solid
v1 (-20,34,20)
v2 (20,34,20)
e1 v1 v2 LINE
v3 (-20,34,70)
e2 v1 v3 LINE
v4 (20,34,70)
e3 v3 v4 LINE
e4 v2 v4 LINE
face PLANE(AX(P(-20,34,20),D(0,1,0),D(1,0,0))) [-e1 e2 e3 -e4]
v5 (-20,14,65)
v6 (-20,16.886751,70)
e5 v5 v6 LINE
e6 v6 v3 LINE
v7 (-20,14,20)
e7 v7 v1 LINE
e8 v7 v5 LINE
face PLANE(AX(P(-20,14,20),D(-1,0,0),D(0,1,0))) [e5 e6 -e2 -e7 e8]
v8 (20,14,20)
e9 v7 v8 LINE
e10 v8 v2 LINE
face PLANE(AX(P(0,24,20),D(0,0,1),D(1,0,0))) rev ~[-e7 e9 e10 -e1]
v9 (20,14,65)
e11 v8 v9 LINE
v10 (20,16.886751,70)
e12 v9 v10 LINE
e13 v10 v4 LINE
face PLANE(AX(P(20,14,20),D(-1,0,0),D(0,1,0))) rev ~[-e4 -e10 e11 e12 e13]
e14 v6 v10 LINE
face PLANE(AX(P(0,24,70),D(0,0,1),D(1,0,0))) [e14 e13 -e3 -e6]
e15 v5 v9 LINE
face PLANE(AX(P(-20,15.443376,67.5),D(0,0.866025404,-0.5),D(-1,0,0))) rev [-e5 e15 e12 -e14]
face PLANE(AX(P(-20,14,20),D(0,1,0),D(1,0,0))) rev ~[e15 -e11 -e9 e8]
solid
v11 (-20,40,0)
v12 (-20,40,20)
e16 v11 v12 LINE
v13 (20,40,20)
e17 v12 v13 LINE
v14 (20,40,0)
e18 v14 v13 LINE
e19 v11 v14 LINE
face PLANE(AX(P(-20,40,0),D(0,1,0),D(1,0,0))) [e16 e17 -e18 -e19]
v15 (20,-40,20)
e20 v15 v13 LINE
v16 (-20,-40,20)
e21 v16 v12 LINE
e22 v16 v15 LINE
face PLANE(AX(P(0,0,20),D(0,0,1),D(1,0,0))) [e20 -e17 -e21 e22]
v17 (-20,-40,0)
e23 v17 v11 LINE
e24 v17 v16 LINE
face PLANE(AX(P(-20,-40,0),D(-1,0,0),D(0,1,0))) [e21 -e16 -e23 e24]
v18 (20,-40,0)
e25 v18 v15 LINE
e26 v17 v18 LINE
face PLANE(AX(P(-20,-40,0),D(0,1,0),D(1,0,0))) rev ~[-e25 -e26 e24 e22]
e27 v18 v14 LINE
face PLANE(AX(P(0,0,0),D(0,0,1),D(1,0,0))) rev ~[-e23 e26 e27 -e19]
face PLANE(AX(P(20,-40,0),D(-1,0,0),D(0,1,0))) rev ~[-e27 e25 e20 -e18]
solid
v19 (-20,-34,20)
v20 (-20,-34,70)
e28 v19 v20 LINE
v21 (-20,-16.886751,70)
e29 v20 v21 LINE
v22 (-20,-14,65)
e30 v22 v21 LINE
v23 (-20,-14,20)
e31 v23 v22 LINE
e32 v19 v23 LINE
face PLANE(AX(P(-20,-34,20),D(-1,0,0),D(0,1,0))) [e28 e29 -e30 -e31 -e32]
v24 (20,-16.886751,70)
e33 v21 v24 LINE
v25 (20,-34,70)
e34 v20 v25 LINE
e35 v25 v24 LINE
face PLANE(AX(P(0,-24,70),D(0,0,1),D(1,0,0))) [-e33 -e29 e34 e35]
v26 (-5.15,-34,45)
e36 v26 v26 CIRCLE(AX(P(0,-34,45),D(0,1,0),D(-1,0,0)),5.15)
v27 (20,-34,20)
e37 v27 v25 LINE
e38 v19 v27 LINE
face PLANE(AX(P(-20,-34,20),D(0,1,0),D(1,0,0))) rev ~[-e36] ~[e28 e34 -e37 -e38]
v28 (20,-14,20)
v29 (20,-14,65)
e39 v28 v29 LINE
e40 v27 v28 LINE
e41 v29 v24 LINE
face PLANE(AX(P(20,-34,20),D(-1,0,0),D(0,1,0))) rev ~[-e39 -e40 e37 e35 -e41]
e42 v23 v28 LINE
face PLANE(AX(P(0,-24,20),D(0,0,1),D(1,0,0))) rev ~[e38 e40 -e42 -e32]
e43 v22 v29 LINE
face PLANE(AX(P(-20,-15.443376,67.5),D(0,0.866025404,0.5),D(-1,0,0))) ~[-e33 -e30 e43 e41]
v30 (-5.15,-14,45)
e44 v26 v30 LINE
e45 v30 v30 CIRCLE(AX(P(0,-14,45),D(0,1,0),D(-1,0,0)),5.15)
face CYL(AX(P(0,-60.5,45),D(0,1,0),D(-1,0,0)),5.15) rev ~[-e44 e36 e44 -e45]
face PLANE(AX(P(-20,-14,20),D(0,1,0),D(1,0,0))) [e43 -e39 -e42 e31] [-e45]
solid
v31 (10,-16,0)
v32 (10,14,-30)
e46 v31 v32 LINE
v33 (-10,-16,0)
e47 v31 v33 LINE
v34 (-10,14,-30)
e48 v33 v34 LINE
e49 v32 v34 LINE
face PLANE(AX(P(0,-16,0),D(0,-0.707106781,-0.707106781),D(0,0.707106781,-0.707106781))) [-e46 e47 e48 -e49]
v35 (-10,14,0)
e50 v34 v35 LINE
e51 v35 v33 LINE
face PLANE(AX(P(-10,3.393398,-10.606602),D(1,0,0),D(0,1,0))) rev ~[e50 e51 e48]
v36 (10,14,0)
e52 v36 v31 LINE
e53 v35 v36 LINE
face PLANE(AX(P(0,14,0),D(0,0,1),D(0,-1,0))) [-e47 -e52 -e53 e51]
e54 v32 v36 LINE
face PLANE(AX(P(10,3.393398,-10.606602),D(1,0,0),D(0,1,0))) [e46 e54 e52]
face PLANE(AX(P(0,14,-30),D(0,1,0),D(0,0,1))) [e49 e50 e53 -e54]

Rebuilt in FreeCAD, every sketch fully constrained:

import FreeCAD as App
import Part
import Sketcher
from FreeCAD import Vector
Q = App.Units.Quantity


def edges_at(feature, points):
    """Names of the edges that pass closest to the given points."""
    edges = feature.Shape.Edges
    near = lambda p: min(range(len(edges)), key=lambda i: edges[i].distToShape(Part.Vertex(*p))[0])
    return sorted({f"Edge{near(p) + 1}" for p in points})

doc = App.newDocument("Part")
body = doc.addObject("PartDesign::Body", "Body")

# Sketch on XY plane
sketch1 = body.newObject("Sketcher::SketchObject", "Sketch")
sketch1.AttachmentSupport = (doc.getObject("XY_Plane"), [""])
sketch1.MapMode = "FlatFace"
sketch1.addGeometry(Part.LineSegment(Vector(-20, 40, 0), Vector(-20, -40, 0)), False)
sketch1.addGeometry(Part.LineSegment(Vector(-20, -40, 0), Vector(20, -40, 0)), False)
sketch1.addGeometry(Part.LineSegment(Vector(20, -40, 0), Vector(20, 40, 0)), False)
sketch1.addGeometry(Part.LineSegment(Vector(20, 40, 0), Vector(-20, 40, 0)), False)
sketch1.addConstraint(Sketcher.Constraint("Coincident", 0, 2, 1, 1))
sketch1.addConstraint(Sketcher.Constraint("Coincident", 1, 2, 2, 1))
sketch1.addConstraint(Sketcher.Constraint("Coincident", 2, 2, 3, 1))
sketch1.addConstraint(Sketcher.Constraint("Coincident", 3, 2, 0, 1))
sketch1.addConstraint(Sketcher.Constraint("Vertical", 0))
sketch1.addConstraint(Sketcher.Constraint("Horizontal", 1))
sketch1.addConstraint(Sketcher.Constraint("Vertical", 2))
sketch1.addConstraint(Sketcher.Constraint("Horizontal", 3))
sketch1.addConstraint(Sketcher.Constraint("Symmetric", 0, 2, 2, 2, -1, 1))
sketch1.addConstraint(Sketcher.Constraint("DistanceX", 1, 1, 1, 2, Q("40 mm")))
sketch1.addConstraint(Sketcher.Constraint("DistanceY", 0, 2, 0, 1, Q("80 mm")))
pad1 = body.newObject("PartDesign::Pad", "Pad")
pad1.Profile = sketch1
pad1.Length = 20
body2 = doc.addObject("PartDesign::Body", "Body001")

# Sketch on XY plane
sketch2 = body2.newObject("Sketcher::SketchObject", "Sketch001")
sketch2.AttachmentSupport = (doc.getObject("XY_Plane001"), [""])
sketch2.MapMode = "FlatFace"
sketch2.AttachmentOffset = App.Placement(Vector(0, 0, 20), App.Rotation())
sketch2.addGeometry(Part.LineSegment(Vector(-20, -14, 0), Vector(-20, -34, 0)), False)
sketch2.addGeometry(Part.LineSegment(Vector(-20, -34, 0), Vector(20, -34, 0)), False)
sketch2.addGeometry(Part.LineSegment(Vector(20, -34, 0), Vector(20, -14, 0)), False)
sketch2.addGeometry(Part.LineSegment(Vector(20, -14, 0), Vector(-20, -14, 0)), False)
sketch2.addConstraint(Sketcher.Constraint("Coincident", 0, 2, 1, 1))
sketch2.addConstraint(Sketcher.Constraint("Coincident", 1, 2, 2, 1))
sketch2.addConstraint(Sketcher.Constraint("Coincident", 2, 2, 3, 1))
sketch2.addConstraint(Sketcher.Constraint("Coincident", 3, 2, 0, 1))
sketch2.addConstraint(Sketcher.Constraint("Vertical", 0))
sketch2.addConstraint(Sketcher.Constraint("Horizontal", 1))
sketch2.addConstraint(Sketcher.Constraint("Vertical", 2))
sketch2.addConstraint(Sketcher.Constraint("Horizontal", 3))
sketch2.addConstraint(Sketcher.Constraint("DistanceX", 1, 1, 1, 2, Q("40 mm")))
sketch2.addConstraint(Sketcher.Constraint("DistanceY", 0, 2, 0, 1, Q("20 mm")))
sketch2.addConstraint(Sketcher.Constraint("DistanceX", 0, 2, -1, 1, Q("20 mm")))
sketch2.addConstraint(Sketcher.Constraint("DistanceY", 0, 2, -1, 1, Q("34 mm")))
pad2 = body2.newObject("PartDesign::Pad", "Pad001")
pad2.Profile = sketch2
pad2.Length = 50

# Sketch on XZ plane
sketch3 = body2.newObject("Sketcher::SketchObject", "Sketch002")
sketch3.AttachmentSupport = (doc.getObject("XZ_Plane001"), [""])
sketch3.MapMode = "FlatFace"
sketch3.AttachmentOffset = App.Placement(Vector(0, 0, 34), App.Rotation())
sketch3.addGeometry(Part.Circle(Vector(0, 45, 0), Vector(0, 0, 1), 5.15), False)
sketch3.addConstraint(Sketcher.Constraint("PointOnObject", 0, 3, -2))
sketch3.addConstraint(Sketcher.Constraint("Diameter", 0, Q("10.3 mm")))
sketch3.addConstraint(Sketcher.Constraint("DistanceY", -1, 1, 0, 3, Q("45 mm")))
doc.recompute()
hole = body2.newObject("PartDesign::Hole", "Hole")
hole.Profile = sketch3
hole.ThreadType = "None"
hole.Diameter = 10.3
hole.DepthType = "Dimension"
hole.Depth = 26.5
hole.DrillPoint = "Angled"
hole.DrillPointAngle = 118
doc.recompute()

chamfer = body2.newObject("PartDesign::Chamfer", "Chamfer")
chamfer.Base = (hole, edges_at(hole, [(0, -14, 70)]))
chamfer.ChamferType = "Two distances"
chamfer.Size = 5
chamfer.Size2 = 2.886751
body3 = doc.addObject("PartDesign::Body", "Body002")

# Sketch on XY plane
sketch4 = body3.newObject("Sketcher::SketchObject", "Sketch003")
sketch4.AttachmentSupport = (doc.getObject("XY_Plane002"), [""])
sketch4.MapMode = "FlatFace"
sketch4.AttachmentOffset = App.Placement(Vector(0, 0, 20), App.Rotation())
sketch4.addGeometry(Part.LineSegment(Vector(-20, 34, 0), Vector(-20, 14, 0)), False)
sketch4.addGeometry(Part.LineSegment(Vector(-20, 14, 0), Vector(20, 14, 0)), False)
sketch4.addGeometry(Part.LineSegment(Vector(20, 14, 0), Vector(20, 34, 0)), False)
sketch4.addGeometry(Part.LineSegment(Vector(20, 34, 0), Vector(-20, 34, 0)), False)
sketch4.addConstraint(Sketcher.Constraint("Coincident", 0, 2, 1, 1))
sketch4.addConstraint(Sketcher.Constraint("Coincident", 1, 2, 2, 1))
sketch4.addConstraint(Sketcher.Constraint("Coincident", 2, 2, 3, 1))
sketch4.addConstraint(Sketcher.Constraint("Coincident", 3, 2, 0, 1))
sketch4.addConstraint(Sketcher.Constraint("Vertical", 0))
sketch4.addConstraint(Sketcher.Constraint("Horizontal", 1))
sketch4.addConstraint(Sketcher.Constraint("Vertical", 2))
sketch4.addConstraint(Sketcher.Constraint("Horizontal", 3))
sketch4.addConstraint(Sketcher.Constraint("DistanceX", 1, 1, 1, 2, Q("40 mm")))
sketch4.addConstraint(Sketcher.Constraint("DistanceY", 0, 2, 0, 1, Q("20 mm")))
sketch4.addConstraint(Sketcher.Constraint("DistanceX", 0, 2, -1, 1, Q("20 mm")))
sketch4.addConstraint(Sketcher.Constraint("DistanceY", -1, 1, 0, 2, Q("14 mm")))
pad3 = body3.newObject("PartDesign::Pad", "Pad002")
pad3.Profile = sketch4
pad3.Length = 50
doc.recompute()

chamfer2 = body3.newObject("PartDesign::Chamfer", "Chamfer001")
chamfer2.Base = (pad3, edges_at(pad3, [(0, 14, 70)]))
chamfer2.ChamferType = "Two distances"
chamfer2.Size = 5
chamfer2.Size2 = 2.886751
body4 = doc.addObject("PartDesign::Body", "Body003")

# Sketch on YZ plane
sketch5 = body4.newObject("Sketcher::SketchObject", "Sketch004")
sketch5.AttachmentSupport = (doc.getObject("YZ_Plane003"), [""])
sketch5.MapMode = "FlatFace"
sketch5.addGeometry(Part.LineSegment(Vector(14, -30, 0), Vector(14, 0, 0)), False)
sketch5.addGeometry(Part.LineSegment(Vector(14, 0, 0), Vector(-16, 0, 0)), False)
sketch5.addGeometry(Part.LineSegment(Vector(-16, 0, 0), Vector(14, -30, 0)), False)
sketch5.addConstraint(Sketcher.Constraint("Coincident", 0, 2, 1, 1))
sketch5.addConstraint(Sketcher.Constraint("Coincident", 1, 2, 2, 1))
sketch5.addConstraint(Sketcher.Constraint("Coincident", 2, 2, 0, 1))
sketch5.addConstraint(Sketcher.Constraint("Vertical", 0))
sketch5.addConstraint(Sketcher.Constraint("Horizontal", 1))
sketch5.addConstraint(Sketcher.Constraint("PointOnObject", 0, 2, -1))
sketch5.addConstraint(Sketcher.Constraint("Equal", 1, 0))
sketch5.addConstraint(Sketcher.Constraint("DistanceX", 1, 2, 1, 1, Q("30 mm")))
sketch5.addConstraint(Sketcher.Constraint("DistanceX", -1, 1, 0, 2, Q("14 mm")))
pad4 = body4.newObject("PartDesign::Pad", "Pad003")
pad4.Profile = sketch5
pad4.Length = 20
pad4.Midplane = True

doc.recompute()
